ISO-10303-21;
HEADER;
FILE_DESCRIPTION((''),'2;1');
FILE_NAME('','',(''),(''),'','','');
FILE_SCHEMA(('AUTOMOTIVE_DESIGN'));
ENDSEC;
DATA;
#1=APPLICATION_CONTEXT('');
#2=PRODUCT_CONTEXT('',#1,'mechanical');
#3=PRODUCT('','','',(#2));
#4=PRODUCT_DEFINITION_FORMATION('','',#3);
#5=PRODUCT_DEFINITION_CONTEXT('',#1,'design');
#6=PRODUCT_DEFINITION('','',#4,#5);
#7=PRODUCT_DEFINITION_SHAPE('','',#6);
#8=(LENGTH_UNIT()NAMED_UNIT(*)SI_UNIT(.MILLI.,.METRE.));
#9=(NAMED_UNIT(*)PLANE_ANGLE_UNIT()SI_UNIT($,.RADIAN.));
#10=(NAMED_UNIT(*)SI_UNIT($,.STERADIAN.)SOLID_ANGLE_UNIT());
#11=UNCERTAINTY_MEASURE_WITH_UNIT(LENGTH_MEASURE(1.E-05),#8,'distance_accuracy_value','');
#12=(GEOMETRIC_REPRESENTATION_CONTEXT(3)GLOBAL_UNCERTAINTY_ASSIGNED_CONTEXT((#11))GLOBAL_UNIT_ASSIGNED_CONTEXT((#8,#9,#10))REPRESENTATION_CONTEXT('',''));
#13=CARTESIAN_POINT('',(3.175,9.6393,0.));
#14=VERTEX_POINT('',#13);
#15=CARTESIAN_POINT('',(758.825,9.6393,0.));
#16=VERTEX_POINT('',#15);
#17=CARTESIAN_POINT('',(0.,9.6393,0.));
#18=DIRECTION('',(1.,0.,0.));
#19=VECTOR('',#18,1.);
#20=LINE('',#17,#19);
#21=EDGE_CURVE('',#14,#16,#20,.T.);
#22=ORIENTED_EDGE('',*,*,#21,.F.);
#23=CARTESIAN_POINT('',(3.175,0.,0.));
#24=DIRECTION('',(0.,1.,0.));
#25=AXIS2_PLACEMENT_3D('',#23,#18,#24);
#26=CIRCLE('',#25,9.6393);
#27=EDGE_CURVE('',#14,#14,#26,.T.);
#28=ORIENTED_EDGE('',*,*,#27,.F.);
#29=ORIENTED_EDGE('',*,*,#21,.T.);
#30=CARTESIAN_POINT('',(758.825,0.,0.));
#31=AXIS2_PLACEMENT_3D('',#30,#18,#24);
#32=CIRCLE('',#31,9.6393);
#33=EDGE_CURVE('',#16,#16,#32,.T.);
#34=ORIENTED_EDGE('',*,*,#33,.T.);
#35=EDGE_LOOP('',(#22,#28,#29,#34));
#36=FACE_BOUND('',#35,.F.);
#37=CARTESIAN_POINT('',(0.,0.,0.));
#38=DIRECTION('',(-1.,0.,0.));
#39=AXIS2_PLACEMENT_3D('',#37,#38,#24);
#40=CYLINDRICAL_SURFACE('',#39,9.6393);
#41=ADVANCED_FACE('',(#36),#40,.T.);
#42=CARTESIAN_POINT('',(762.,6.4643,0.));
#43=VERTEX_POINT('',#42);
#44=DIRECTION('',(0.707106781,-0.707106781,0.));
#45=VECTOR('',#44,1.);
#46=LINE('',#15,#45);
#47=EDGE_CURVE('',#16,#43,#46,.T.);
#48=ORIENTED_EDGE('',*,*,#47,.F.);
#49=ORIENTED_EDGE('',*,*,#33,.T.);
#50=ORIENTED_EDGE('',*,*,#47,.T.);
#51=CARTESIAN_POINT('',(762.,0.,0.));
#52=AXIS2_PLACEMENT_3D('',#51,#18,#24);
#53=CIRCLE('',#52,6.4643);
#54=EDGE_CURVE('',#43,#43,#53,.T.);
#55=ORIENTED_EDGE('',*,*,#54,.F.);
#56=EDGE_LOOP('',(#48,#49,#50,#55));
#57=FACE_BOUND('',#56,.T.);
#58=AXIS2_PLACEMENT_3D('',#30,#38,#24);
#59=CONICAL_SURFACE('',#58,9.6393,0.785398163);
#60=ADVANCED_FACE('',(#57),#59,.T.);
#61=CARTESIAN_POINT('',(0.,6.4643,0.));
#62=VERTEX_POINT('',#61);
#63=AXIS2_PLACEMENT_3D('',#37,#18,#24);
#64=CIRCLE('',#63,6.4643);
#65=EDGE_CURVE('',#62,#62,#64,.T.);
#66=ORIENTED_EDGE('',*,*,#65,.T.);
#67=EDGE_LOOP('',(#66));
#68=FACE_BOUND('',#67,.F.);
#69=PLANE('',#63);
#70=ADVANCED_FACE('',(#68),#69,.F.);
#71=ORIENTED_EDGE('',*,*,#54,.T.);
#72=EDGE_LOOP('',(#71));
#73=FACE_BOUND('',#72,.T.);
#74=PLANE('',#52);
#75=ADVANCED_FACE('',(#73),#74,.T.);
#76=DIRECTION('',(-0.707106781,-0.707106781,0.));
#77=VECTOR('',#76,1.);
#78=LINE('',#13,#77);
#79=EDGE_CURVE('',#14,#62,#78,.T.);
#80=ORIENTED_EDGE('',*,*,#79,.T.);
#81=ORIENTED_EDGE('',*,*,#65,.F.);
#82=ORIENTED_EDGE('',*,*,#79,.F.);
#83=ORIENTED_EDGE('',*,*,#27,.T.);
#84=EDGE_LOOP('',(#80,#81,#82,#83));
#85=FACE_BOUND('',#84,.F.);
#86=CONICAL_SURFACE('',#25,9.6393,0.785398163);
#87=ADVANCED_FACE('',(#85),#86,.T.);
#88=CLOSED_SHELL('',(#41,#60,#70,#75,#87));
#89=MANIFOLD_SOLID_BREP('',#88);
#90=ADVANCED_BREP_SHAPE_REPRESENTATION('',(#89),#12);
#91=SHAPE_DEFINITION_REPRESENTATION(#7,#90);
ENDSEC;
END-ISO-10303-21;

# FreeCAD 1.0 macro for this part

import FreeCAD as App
import Part
import Sketcher
from FreeCAD import Vector
Q = App.Units.Quantity


def edges_at(feature, points):
    """Names of the edges that pass closest to the given points."""
    edges = feature.Shape.Edges
    near = lambda p: min(range(len(edges)), key=lambda i: edges[i].distToShape(Part.Vertex(*p))[0])
    return sorted({f"Edge{near(p) + 1}" for p in points})

doc = App.newDocument("Part")
body = doc.addObject("PartDesign::Body", "Body")

# Sketch on YZ plane
sketch1 = body.newObject("Sketcher::SketchObject", "Sketch")
sketch1.AttachmentSupport = (doc.getObject("YZ_Plane"), [""])
sketch1.MapMode = "FlatFace"
sketch1.addGeometry(Part.Circle(Vector(0, 0, 0), Vector(0, 0, 1), 10), False)
sketch1.addConstraint([
    Sketcher.Constraint("Coincident", 0, 3, -1, 1),
    Sketcher.Constraint("Diameter", 0, Q("0.759 in")),
])
pad1 = body.newObject("PartDesign::Pad", "Pad")
pad1.Profile = sketch1
pad1.Length = Q("30 in")
doc.recompute()

chamfer = body.newObject("PartDesign::Chamfer", "Chamfer")
chamfer.Base = (pad1, edges_at(pad1, [(0, -9.639, 0), (762, -9.639, 0)]))
chamfer.Size = Q("0.125 in")

doc.recompute()
